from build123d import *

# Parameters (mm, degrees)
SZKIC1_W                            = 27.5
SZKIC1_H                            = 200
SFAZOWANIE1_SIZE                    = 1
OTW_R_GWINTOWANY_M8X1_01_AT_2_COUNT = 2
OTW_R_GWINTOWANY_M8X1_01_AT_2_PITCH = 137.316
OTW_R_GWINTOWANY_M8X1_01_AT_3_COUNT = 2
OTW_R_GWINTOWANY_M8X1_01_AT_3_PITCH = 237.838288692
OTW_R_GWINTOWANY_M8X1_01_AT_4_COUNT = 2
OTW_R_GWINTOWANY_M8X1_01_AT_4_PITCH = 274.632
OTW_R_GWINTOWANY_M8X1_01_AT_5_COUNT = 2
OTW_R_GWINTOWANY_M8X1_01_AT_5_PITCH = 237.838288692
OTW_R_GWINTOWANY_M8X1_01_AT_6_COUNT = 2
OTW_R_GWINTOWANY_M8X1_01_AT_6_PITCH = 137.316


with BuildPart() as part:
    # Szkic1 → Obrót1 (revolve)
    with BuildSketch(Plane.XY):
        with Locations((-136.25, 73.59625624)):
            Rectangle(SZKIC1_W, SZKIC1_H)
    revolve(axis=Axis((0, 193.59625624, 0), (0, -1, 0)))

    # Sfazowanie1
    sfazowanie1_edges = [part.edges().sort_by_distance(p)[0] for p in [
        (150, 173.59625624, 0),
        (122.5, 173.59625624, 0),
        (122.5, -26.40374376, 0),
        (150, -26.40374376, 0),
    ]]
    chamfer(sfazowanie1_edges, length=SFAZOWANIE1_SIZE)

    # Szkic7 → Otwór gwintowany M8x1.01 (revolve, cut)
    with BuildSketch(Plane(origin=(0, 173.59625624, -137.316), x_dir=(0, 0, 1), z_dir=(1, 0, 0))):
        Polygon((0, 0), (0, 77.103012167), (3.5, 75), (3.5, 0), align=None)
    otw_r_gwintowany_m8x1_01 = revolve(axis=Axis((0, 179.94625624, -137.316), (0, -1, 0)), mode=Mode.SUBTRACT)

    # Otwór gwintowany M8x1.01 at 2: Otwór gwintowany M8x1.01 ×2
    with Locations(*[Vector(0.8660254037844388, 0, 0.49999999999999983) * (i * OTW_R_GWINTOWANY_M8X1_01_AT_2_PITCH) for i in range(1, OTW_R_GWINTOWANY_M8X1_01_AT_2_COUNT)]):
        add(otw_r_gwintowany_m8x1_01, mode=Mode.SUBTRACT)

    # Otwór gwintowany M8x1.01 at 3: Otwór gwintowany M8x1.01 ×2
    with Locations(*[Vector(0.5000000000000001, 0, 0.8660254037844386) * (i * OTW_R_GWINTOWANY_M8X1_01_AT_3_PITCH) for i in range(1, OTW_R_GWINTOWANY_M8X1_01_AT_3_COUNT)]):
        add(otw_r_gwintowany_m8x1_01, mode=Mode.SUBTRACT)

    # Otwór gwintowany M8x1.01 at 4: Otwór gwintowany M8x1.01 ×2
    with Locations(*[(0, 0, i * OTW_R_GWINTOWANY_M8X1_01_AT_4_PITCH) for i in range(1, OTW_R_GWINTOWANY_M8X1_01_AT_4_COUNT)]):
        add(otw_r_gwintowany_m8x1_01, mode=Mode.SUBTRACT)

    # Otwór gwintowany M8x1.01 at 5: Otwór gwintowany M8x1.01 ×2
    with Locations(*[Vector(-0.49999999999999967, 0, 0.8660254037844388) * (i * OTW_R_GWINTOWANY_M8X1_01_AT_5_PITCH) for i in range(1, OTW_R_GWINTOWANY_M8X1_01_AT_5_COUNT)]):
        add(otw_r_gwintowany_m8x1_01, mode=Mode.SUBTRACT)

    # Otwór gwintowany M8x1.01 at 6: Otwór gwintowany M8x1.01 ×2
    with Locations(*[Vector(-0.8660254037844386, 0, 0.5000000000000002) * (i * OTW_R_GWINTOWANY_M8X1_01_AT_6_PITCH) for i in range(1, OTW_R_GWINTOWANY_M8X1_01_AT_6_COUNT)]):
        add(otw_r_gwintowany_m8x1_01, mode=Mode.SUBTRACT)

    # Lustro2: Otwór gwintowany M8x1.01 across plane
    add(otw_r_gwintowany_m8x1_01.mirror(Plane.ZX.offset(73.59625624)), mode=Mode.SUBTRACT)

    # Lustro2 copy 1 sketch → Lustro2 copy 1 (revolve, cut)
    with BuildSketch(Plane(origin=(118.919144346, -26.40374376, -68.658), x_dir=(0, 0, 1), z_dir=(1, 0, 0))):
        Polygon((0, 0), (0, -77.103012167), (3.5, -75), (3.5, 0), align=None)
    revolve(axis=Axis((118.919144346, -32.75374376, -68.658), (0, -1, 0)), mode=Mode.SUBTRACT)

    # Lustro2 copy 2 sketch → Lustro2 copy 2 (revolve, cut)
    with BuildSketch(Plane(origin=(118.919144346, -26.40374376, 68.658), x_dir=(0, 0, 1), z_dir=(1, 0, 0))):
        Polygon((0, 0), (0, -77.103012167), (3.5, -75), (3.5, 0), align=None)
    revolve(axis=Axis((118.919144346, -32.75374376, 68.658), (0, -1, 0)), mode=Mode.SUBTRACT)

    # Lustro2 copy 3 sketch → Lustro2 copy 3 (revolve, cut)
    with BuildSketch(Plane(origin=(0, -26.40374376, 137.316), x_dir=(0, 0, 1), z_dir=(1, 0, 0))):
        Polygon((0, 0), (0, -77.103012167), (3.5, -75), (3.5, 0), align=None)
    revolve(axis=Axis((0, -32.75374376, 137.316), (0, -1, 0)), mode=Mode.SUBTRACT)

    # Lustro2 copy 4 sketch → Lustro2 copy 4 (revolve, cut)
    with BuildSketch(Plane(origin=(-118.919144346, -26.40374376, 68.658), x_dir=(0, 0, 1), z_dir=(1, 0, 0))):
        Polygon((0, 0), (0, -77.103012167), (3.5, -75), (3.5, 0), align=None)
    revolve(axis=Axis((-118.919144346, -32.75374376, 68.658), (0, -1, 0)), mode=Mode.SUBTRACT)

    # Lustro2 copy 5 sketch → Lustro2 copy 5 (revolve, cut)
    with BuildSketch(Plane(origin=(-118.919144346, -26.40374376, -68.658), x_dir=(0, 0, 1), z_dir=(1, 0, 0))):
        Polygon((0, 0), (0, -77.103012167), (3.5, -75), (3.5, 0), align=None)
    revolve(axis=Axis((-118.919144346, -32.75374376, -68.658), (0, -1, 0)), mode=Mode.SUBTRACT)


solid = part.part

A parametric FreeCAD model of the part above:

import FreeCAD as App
import Part
import Sketcher
from FreeCAD import Vector
Q = App.Units.Quantity


def edges_at(feature, points):
    """Names of the edges that pass closest to the given points."""
    edges = feature.Shape.Edges
    near = lambda p: min(range(len(edges)), key=lambda i: edges[i].distToShape(Part.Vertex(*p))[0])
    return sorted({f"Edge{near(p) + 1}" for p in points})

doc = App.newDocument("Part")
body = doc.addObject("PartDesign::Body", "Body")

sketch1 = body.newObject("Sketcher::SketchObject", "Sketch")
sketch1.AttachmentSupport = (doc.getObject("XY_Plane"), [""])
sketch1.MapMode = "FlatFace"
sketch1.addGeometry([
    Part.LineSegment(Vector(-150, 174, 0), Vector(-150, -26, 0)),
    Part.LineSegment(Vector(-150, -26, 0), Vector(-122, -26, 0)),
    Part.LineSegment(Vector(-122, -26, 0), Vector(-122, 174, 0)),
    Part.LineSegment(Vector(-122, 174, 0), Vector(-150, 174, 0)),
], False)
sketch1.addConstraint([
    Sketcher.Constraint("Coincident", 0, 2, 1, 1),
    Sketcher.Constraint("Coincident", 1, 2, 2, 1),
    Sketcher.Constraint("Coincident", 2, 2, 3, 1),
    Sketcher.Constraint("Coincident", 3, 2, 0, 1),
    Sketcher.Constraint("Vertical", 0),
    Sketcher.Constraint("Horizontal", 1),
    Sketcher.Constraint("Vertical", 2),
    Sketcher.Constraint("Horizontal", 3),
    Sketcher.Constraint("DistanceY", 0, 2, 0, 1, 200.0),
    Sketcher.Constraint("DistanceX", 1, 1, 1, 2, 27.5),
    Sketcher.Constraint("DistanceX", 0, 2, -1, 1, 150.0),
    Sketcher.Constraint("DistanceY", 0, 2, -1, 1, 26.403744),
])
revolution = body.newObject("PartDesign::Revolution", "Revolution")
revolution.Profile = sketch1
revolution.ReferenceAxis = (sketch1, ["V_Axis"])
revolution.Angle = 360
doc.recompute()

chamfer = body.newObject("PartDesign::Chamfer", "Chamfer")
chamfer.Base = (revolution, edges_at(revolution, [
    (150, 173.596, 0),
    (122.5, 173.596, 0),
    (122.5, -26.404, 0),
    (150, -26.404, 0),
]))
chamfer.Size = 1

sketch2 = body.newObject("Sketcher::SketchObject", "Sketch001")
sketch2.AttachmentSupport = (doc.getObject("YZ_Plane"), [""])
sketch2.MapMode = "FlatFace"
sketch2.addGeometry([
    Part.LineSegment(Vector(96.5, -137.3, 0), Vector(173.6, -137.3, 0)),
    Part.LineSegment(Vector(173.6, -137.3, 0), Vector(173.6, -133.8, 0)),
    Part.LineSegment(Vector(173.6, -133.8, 0), Vector(98.6, -133.8, 0)),
    Part.LineSegment(Vector(98.6, -133.8, 0), Vector(96.5, -137.3, 0)),
], False)
sketch2.addGeometry(Part.LineSegment(Vector(173.6, -137.3, 0), Vector(96.5, -137.3, 0)), True)
sketch2.addConstraint([
    Sketcher.Constraint("Coincident", 0, 2, 1, 1),
    Sketcher.Constraint("Coincident", 1, 2, 2, 1),
    Sketcher.Constraint("Coincident", 2, 2, 3, 1),
    Sketcher.Constraint("Coincident", 3, 2, 0, 1),
    Sketcher.Constraint("Horizontal", 0),
    Sketcher.Constraint("Vertical", 1),
    Sketcher.Constraint("Horizontal", 2),
    Sketcher.Constraint("Horizontal", 4),
    Sketcher.Constraint("Coincident", 4, 1, 0, 2),
    Sketcher.Constraint("Equal", 0, 4),
    Sketcher.Constraint("DistanceX", 2, 2, 2, 1, 75.0),
    Sketcher.Constraint("Angle", 3, Q("-121 deg")),
    Sketcher.Constraint("DistanceY", 1, 1, 1, 2, 3.5),
    Sketcher.Constraint("DistanceY", 0, 2, -1, 1, 137.316),
    Sketcher.Constraint("DistanceX", -1, 1, 0, 2, 173.596256),
])
groove = body.newObject("PartDesign::Groove", "Groove")
groove.Profile = sketch2
groove.ReferenceAxis = (sketch2, ["Axis0"])
groove.Angle = 360
doc.recompute()

datumline = body.newObject("PartDesign::Line", "DatumLine")
datumline.Placement = App.Placement(Vector(0, 0, 0), App.Rotation(Vector(0, 0, 1), Vector(0.866025404, 0, 0.5)))
linearpattern = body.newObject("PartDesign::LinearPattern", "LinearPattern")
linearpattern.Originals = [groove]
linearpattern.Direction = (datumline, [""])
linearpattern.Mode = "offset"
linearpattern.Offset = 137.316
linearpattern.Occurrences = 2
body.Tip = linearpattern
doc.recompute()

datumline2 = body.newObject("PartDesign::Line", "DatumLine001")
datumline2.Placement = App.Placement(Vector(0, 0, 0), App.Rotation(Vector(0, 0, 1), Vector(0.5, 0, 0.866025404)))
linearpattern2 = body.newObject("PartDesign::LinearPattern", "LinearPattern001")
linearpattern2.Originals = [groove]
linearpattern2.Direction = (datumline2, [""])
linearpattern2.Mode = "offset"
linearpattern2.Offset = 237.838289
linearpattern2.Occurrences = 2
body.Tip = linearpattern2
doc.recompute()

linearpattern3 = body.newObject("PartDesign::LinearPattern", "LinearPattern002")
linearpattern3.Originals = [groove]
linearpattern3.Direction = (doc.getObject("Z_Axis"), [""])
linearpattern3.Mode = "offset"
linearpattern3.Offset = 274.632
linearpattern3.Occurrences = 2
body.Tip = linearpattern3
doc.recompute()

datumline3 = body.newObject("PartDesign::Line", "DatumLine002")
datumline3.Placement = App.Placement(Vector(0, 0, 0), App.Rotation(Vector(0, 0, 1), Vector(-0.5, 0, 0.866025404)))
linearpattern4 = body.newObject("PartDesign::LinearPattern", "LinearPattern003")
linearpattern4.Originals = [groove]
linearpattern4.Direction = (datumline3, [""])
linearpattern4.Mode = "offset"
linearpattern4.Offset = 237.838289
linearpattern4.Occurrences = 2
body.Tip = linearpattern4
doc.recompute()

datumline4 = body.newObject("PartDesign::Line", "DatumLine003")
datumline4.Placement = App.Placement(Vector(0, 0, 0), App.Rotation(Vector(0, 0, 1), Vector(-0.866025404, 0, 0.5)))
linearpattern5 = body.newObject("PartDesign::LinearPattern", "LinearPattern004")
linearpattern5.Originals = [groove]
linearpattern5.Direction = (datumline4, [""])
linearpattern5.Mode = "offset"
linearpattern5.Offset = 137.316
linearpattern5.Occurrences = 2
body.Tip = linearpattern5
doc.recompute()

datumplane = body.newObject("PartDesign::Plane", "DatumPlane")
datumplane.AttachmentSupport = (doc.getObject("XZ_Plane"), [""])
datumplane.MapMode = "FlatFace"
datumplane.AttachmentOffset = App.Placement(Vector(0, 0, -73.596256), App.Rotation())
mirrored = body.newObject("PartDesign::Mirrored", "Mirrored")
mirrored.Originals = [groove]
mirrored.MirrorPlane = (datumplane, [""])
body.Tip = mirrored

sketch3 = body.newObject("Sketcher::SketchObject", "Sketch002")
sketch3.AttachmentSupport = (doc.getObject("YZ_Plane"), [""])
sketch3.MapMode = "FlatFace"
sketch3.AttachmentOffset = App.Placement(Vector(0, 0, 118.919144), App.Rotation())
sketch3.addGeometry([
    Part.LineSegment(Vector(-26.4, -68.7, 0), Vector(50.7, -68.7, 0)),
    Part.LineSegment(Vector(50.7, -68.7, 0), Vector(48.6, -65.2, 0)),
    Part.LineSegment(Vector(48.6, -65.2, 0), Vector(-26.4, -65.2, 0)),
    Part.LineSegment(Vector(-26.4, -65.2, 0), Vector(-26.4, -68.7, 0)),
], False)
sketch3.addGeometry(Part.LineSegment(Vector(50.7, -68.7, 0), Vector(-26.4, -68.7, 0)), True)
sketch3.addConstraint([
    Sketcher.Constraint("Coincident", 0, 2, 1, 1),
    Sketcher.Constraint("Coincident", 1, 2, 2, 1),
    Sketcher.Constraint("Coincident", 2, 2, 3, 1),
    Sketcher.Constraint("Coincident", 3, 2, 0, 1),
    Sketcher.Constraint("Horizontal", 0),
    Sketcher.Constraint("Horizontal", 2),
    Sketcher.Constraint("Vertical", 3),
    Sketcher.Constraint("Horizontal", 4),
    Sketcher.Constraint("Coincident", 4, 1, 0, 2),
    Sketcher.Constraint("Vertical", 2, 2, 4, 2),
    Sketcher.Constraint("DistanceX", 2, 2, 2, 1, 75.0),
    Sketcher.Constraint("Angle", 1, Q("121 deg")),
    Sketcher.Constraint("DistanceY", 3, 2, 3, 1, 3.5),
    Sketcher.Constraint("DistanceY", 0, 2, -1, 1, 68.658),
    Sketcher.Constraint("DistanceX", -1, 1, 0, 2, 50.699268),
])
groove2 = body.newObject("PartDesign::Groove", "Groove001")
groove2.Profile = sketch3
groove2.ReferenceAxis = (sketch3, ["Axis0"])
groove2.Angle = 360

sketch4 = body.newObject("Sketcher::SketchObject", "Sketch003")
sketch4.AttachmentSupport = (doc.getObject("YZ_Plane"), [""])
sketch4.MapMode = "FlatFace"
sketch4.AttachmentOffset = App.Placement(Vector(0, 0, 118.919144), App.Rotation())
sketch4.addGeometry([
    Part.LineSegment(Vector(-26.4, 68.7, 0), Vector(50.7, 68.7, 0)),
    Part.LineSegment(Vector(50.7, 68.7, 0), Vector(48.6, 72.2, 0)),
    Part.LineSegment(Vector(48.6, 72.2, 0), Vector(-26.4, 72.2, 0)),
    Part.LineSegment(Vector(-26.4, 72.2, 0), Vector(-26.4, 68.7, 0)),
], False)
sketch4.addGeometry(Part.LineSegment(Vector(50.7, 68.7, 0), Vector(-26.4, 68.7, 0)), True)
sketch4.addConstraint([
    Sketcher.Constraint("Coincident", 0, 2, 1, 1),
    Sketcher.Constraint("Coincident", 1, 2, 2, 1),
    Sketcher.Constraint("Coincident", 2, 2, 3, 1),
    Sketcher.Constraint("Coincident", 3, 2, 0, 1),
    Sketcher.Constraint("Horizontal", 0),
    Sketcher.Constraint("Horizontal", 2),
    Sketcher.Constraint("Vertical", 3),
    Sketcher.Constraint("Horizontal", 4),
    Sketcher.Constraint("Coincident", 4, 1, 0, 2),
    Sketcher.Constraint("Vertical", 2, 2, 4, 2),
    Sketcher.Constraint("DistanceX", 2, 2, 2, 1, 75.0),
    Sketcher.Constraint("Angle", 1, Q("121 deg")),
    Sketcher.Constraint("DistanceY", 3, 2, 3, 1, 3.5),
    Sketcher.Constraint("DistanceY", -1, 1, 0, 2, 68.658),
    Sketcher.Constraint("DistanceX", -1, 1, 0, 2, 50.699268),
])
groove3 = body.newObject("PartDesign::Groove", "Groove002")
groove3.Profile = sketch4
groove3.ReferenceAxis = (sketch4, ["Axis0"])
groove3.Angle = 360

sketch5 = body.newObject("Sketcher::SketchObject", "Sketch004")
sketch5.AttachmentSupport = (doc.getObject("YZ_Plane"), [""])
sketch5.MapMode = "FlatFace"
sketch5.addGeometry([
    Part.LineSegment(Vector(-26.4, 137.3, 0), Vector(50.7, 137.3, 0)),
    Part.LineSegment(Vector(50.7, 137.3, 0), Vector(48.6, 140.8, 0)),
    Part.LineSegment(Vector(48.6, 140.8, 0), Vector(-26.4, 140.8, 0)),
    Part.LineSegment(Vector(-26.4, 140.8, 0), Vector(-26.4, 137.3, 0)),
], False)
sketch5.addGeometry(Part.LineSegment(Vector(50.7, 137.3, 0), Vector(-26.4, 137.3, 0)), True)
sketch5.addConstraint([
    Sketcher.Constraint("Coincident", 0, 2, 1, 1),
    Sketcher.Constraint("Coincident", 1, 2, 2, 1),
    Sketcher.Constraint("Coincident", 2, 2, 3, 1),
    Sketcher.Constraint("Coincident", 3, 2, 0, 1),
    Sketcher.Constraint("Horizontal", 0),
    Sketcher.Constraint("Horizontal", 2),
    Sketcher.Constraint("Vertical", 3),
    Sketcher.Constraint("Horizontal", 4),
    Sketcher.Constraint("Coincident", 4, 1, 0, 2),
    Sketcher.Constraint("Vertical", 2, 2, 4, 2),
    Sketcher.Constraint("DistanceX", 2, 2, 2, 1, 75.0),
    Sketcher.Constraint("Angle", 1, Q("121 deg")),
    Sketcher.Constraint("DistanceY", 3, 2, 3, 1, 3.5),
    Sketcher.Constraint("DistanceY", -1, 1, 0, 2, 137.316),
    Sketcher.Constraint("DistanceX", -1, 1, 0, 2, 50.699268),
])
groove4 = body.newObject("PartDesign::Groove", "Groove003")
groove4.Profile = sketch5
groove4.ReferenceAxis = (sketch5, ["Axis0"])
groove4.Angle = 360

sketch6 = body.newObject("Sketcher::SketchObject", "Sketch005")
sketch6.AttachmentSupport = (doc.getObject("YZ_Plane"), [""])
sketch6.MapMode = "FlatFace"
sketch6.AttachmentOffset = App.Placement(Vector(0, 0, -118.919144), App.Rotation())
sketch6.addGeometry([
    Part.LineSegment(Vector(-26.4, 68.7, 0), Vector(50.7, 68.7, 0)),
    Part.LineSegment(Vector(50.7, 68.7, 0), Vector(48.6, 72.2, 0)),
    Part.LineSegment(Vector(48.6, 72.2, 0), Vector(-26.4, 72.2, 0)),
    Part.LineSegment(Vector(-26.4, 72.2, 0), Vector(-26.4, 68.7, 0)),
], False)
sketch6.addGeometry(Part.LineSegment(Vector(50.7, 68.7, 0), Vector(-26.4, 68.7, 0)), True)
sketch6.addConstraint([
    Sketcher.Constraint("Coincident", 0, 2, 1, 1),
    Sketcher.Constraint("Coincident", 1, 2, 2, 1),
    Sketcher.Constraint("Coincident", 2, 2, 3, 1),
    Sketcher.Constraint("Coincident", 3, 2, 0, 1),
    Sketcher.Constraint("Horizontal", 0),
    Sketcher.Constraint("Horizontal", 2),
    Sketcher.Constraint("Vertical", 3),
    Sketcher.Constraint("Horizontal", 4),
    Sketcher.Constraint("Coincident", 4, 1, 0, 2),
    Sketcher.Constraint("Vertical", 2, 2, 4, 2),
    Sketcher.Constraint("DistanceX", 2, 2, 2, 1, 75.0),
    Sketcher.Constraint("Angle", 1, Q("121 deg")),
    Sketcher.Constraint("DistanceY", 3, 2, 3, 1, 3.5),
    Sketcher.Constraint("DistanceY", -1, 1, 0, 2, 68.658),
    Sketcher.Constraint("DistanceX", -1, 1, 0, 2, 50.699268),
])
groove5 = body.newObject("PartDesign::Groove", "Groove004")
groove5.Profile = sketch6
groove5.ReferenceAxis = (sketch6, ["Axis0"])
groove5.Angle = 360

sketch7 = body.newObject("Sketcher::SketchObject", "Sketch006")
sketch7.AttachmentSupport = (doc.getObject("YZ_Plane"), [""])
sketch7.MapMode = "FlatFace"
sketch7.AttachmentOffset = App.Placement(Vector(0, 0, -118.919144), App.Rotation())
sketch7.addGeometry([
    Part.LineSegment(Vector(-26.4, -68.7, 0), Vector(50.7, -68.7, 0)),
    Part.LineSegment(Vector(50.7, -68.7, 0), Vector(48.6, -65.2, 0)),
    Part.LineSegment(Vector(48.6, -65.2, 0), Vector(-26.4, -65.2, 0)),
    Part.LineSegment(Vector(-26.4, -65.2, 0), Vector(-26.4, -68.7, 0)),
], False)
sketch7.addGeometry(Part.LineSegment(Vector(50.7, -68.7, 0), Vector(-26.4, -68.7, 0)), True)
sketch7.addConstraint([
    Sketcher.Constraint("Coincident", 0, 2, 1, 1),
    Sketcher.Constraint("Coincident", 1, 2, 2, 1),
    Sketcher.Constraint("Coincident", 2, 2, 3, 1),
    Sketcher.Constraint("Coincident", 3, 2, 0, 1),
    Sketcher.Constraint("Horizontal", 0),
    Sketcher.Constraint("Horizontal", 2),
    Sketcher.Constraint("Vertical", 3),
    Sketcher.Constraint("Horizontal", 4),
    Sketcher.Constraint("Coincident", 4, 1, 0, 2),
    Sketcher.Constraint("Vertical", 2, 2, 4, 2),
    Sketcher.Constraint("DistanceX", 2, 2, 2, 1, 75.0),
    Sketcher.Constraint("Angle", 1, Q("121 deg")),
    Sketcher.Constraint("DistanceY", 3, 2, 3, 1, 3.5),
    Sketcher.Constraint("DistanceY", 0, 2, -1, 1, 68.658),
    Sketcher.Constraint("DistanceX", -1, 1, 0, 2, 50.699268),
])
groove6 = body.newObject("PartDesign::Groove", "Groove005")
groove6.Profile = sketch7
groove6.ReferenceAxis = (sketch7, ["Axis0"])
groove6.Angle = 360

doc.recompute()
